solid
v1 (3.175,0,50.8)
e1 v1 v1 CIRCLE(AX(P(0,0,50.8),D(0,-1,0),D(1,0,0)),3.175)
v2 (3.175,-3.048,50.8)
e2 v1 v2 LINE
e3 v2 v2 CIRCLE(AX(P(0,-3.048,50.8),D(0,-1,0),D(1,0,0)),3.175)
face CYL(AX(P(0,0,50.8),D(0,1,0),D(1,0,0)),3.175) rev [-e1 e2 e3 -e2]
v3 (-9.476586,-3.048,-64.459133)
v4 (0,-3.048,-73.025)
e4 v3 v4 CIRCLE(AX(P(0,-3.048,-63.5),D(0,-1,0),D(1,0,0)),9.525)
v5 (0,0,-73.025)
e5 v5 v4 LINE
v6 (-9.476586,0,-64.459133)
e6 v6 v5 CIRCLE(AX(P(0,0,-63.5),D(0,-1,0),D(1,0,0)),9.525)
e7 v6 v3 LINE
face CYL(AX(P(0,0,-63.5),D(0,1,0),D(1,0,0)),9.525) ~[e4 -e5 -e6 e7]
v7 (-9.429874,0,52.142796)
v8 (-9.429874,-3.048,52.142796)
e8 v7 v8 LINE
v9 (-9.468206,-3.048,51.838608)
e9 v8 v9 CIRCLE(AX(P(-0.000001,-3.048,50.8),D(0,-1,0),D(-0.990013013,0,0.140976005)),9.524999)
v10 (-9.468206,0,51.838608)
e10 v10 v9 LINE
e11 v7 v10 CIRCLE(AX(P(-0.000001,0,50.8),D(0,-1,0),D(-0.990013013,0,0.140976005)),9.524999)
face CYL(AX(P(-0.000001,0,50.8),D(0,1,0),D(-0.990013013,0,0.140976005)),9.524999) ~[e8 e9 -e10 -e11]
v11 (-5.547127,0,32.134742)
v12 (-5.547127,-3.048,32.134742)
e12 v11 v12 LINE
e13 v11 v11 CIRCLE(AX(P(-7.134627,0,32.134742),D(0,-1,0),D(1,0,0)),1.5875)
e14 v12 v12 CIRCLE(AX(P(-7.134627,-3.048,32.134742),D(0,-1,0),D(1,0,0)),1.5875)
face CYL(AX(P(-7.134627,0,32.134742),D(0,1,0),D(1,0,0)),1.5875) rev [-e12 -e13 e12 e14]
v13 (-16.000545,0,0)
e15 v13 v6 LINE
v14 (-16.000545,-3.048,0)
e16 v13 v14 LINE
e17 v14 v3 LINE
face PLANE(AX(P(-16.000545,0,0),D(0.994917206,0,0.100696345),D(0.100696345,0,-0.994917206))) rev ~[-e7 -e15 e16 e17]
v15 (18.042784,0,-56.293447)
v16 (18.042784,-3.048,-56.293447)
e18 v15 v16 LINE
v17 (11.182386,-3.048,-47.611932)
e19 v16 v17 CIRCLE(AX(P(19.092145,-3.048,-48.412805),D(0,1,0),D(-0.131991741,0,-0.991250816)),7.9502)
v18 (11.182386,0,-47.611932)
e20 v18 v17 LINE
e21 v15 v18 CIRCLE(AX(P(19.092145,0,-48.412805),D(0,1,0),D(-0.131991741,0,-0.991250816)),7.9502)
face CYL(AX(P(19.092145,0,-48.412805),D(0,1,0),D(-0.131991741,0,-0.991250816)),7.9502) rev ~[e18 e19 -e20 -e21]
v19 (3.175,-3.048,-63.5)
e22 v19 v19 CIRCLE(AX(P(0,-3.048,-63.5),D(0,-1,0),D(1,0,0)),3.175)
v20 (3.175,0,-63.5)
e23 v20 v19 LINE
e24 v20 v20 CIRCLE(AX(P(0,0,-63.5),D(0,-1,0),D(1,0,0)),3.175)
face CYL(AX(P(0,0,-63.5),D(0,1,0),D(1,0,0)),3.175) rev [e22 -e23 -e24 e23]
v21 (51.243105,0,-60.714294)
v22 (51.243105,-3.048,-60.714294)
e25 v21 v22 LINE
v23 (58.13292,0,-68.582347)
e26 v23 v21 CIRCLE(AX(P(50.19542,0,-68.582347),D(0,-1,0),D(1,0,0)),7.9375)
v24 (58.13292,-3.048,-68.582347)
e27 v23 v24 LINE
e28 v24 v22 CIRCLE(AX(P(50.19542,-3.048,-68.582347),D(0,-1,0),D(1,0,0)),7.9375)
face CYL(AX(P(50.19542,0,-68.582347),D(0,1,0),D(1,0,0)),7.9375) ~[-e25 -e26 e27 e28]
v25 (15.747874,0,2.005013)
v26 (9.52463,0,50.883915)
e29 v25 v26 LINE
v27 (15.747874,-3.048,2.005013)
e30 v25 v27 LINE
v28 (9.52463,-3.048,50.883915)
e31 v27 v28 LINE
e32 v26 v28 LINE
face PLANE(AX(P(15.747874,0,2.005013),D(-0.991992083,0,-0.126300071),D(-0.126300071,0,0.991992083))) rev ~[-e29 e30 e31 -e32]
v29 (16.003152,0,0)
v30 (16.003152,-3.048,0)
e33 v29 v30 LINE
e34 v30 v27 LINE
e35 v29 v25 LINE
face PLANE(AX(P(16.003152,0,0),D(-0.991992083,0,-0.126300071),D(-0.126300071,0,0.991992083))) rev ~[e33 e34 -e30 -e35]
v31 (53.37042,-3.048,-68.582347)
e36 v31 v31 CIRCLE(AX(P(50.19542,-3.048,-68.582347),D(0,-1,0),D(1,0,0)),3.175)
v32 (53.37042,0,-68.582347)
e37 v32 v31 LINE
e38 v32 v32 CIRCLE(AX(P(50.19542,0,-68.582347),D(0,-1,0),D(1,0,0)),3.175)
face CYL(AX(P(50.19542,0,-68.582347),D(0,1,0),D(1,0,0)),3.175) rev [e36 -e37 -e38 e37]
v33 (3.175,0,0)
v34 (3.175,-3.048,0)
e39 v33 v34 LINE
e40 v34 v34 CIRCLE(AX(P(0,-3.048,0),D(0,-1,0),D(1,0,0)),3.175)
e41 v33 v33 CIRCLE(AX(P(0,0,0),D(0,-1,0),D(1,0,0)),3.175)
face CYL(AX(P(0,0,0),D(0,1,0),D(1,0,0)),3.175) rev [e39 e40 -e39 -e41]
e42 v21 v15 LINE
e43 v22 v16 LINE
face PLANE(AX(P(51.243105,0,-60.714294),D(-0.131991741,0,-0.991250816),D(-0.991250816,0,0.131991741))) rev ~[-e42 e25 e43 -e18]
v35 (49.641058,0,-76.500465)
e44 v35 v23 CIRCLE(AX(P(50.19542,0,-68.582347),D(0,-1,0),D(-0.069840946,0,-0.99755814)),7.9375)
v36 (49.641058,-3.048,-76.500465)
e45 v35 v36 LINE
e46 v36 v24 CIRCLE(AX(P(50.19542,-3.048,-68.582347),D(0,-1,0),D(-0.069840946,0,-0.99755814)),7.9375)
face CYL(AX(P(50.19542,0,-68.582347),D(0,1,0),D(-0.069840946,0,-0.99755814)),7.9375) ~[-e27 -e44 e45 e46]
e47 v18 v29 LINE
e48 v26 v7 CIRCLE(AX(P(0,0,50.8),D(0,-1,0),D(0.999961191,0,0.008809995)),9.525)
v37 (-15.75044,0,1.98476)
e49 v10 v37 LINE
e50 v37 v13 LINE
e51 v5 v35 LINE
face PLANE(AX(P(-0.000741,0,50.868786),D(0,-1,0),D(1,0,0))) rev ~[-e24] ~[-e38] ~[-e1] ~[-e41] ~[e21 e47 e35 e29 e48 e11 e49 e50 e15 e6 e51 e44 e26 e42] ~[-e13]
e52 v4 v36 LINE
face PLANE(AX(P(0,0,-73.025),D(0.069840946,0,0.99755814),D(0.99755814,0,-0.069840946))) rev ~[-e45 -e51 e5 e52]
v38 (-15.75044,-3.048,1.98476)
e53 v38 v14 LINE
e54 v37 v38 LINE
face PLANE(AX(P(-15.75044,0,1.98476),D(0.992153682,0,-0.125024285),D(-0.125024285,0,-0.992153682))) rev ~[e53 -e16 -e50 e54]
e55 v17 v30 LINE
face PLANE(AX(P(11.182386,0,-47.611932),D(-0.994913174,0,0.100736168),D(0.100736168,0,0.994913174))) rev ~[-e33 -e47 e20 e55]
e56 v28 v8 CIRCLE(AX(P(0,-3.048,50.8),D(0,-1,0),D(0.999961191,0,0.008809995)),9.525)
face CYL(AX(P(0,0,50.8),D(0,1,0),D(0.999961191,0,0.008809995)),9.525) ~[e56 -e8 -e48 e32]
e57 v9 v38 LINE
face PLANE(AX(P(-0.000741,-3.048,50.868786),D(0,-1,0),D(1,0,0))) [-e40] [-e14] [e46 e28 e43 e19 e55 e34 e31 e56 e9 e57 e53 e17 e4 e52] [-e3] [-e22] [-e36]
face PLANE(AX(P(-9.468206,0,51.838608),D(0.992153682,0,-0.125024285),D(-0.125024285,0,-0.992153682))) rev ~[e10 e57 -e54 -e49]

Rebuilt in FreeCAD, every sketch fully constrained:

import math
import FreeCAD as App
import Part
import Sketcher
from FreeCAD import Vector
Q = App.Units.Quantity

doc = App.newDocument("Part")
params = doc.addObject("Spreadsheet::Sheet", "Params")
for row, (alias, value) in enumerate([
    ("sketch1_diameter", "0.25 in"),
    ("sketch1_diameter2", "0.125 in"),
    ("sketch1_radius", "0.375 in"),
    ("sketch1_radius2", "0.3125 in"),
    ("sketch1_radius3", "0.313 in"),
    ("pad1_length", "0.12 in"),
], start=1):
    params.set(f"A{row}", alias)
    params.set(f"B{row}", "=" + value)
    params.setAlias(f"B{row}", alias)

body = doc.addObject("PartDesign::Body", "Body")

# Sketch on XZ plane
sketch1 = body.newObject("Sketcher::SketchObject", "Sketch")
sketch1.AttachmentSupport = (doc.getObject("XZ_Plane"), [""])
sketch1.MapMode = "FlatFace"
sketch1.addGeometry([
    Part.ArcOfCircle(Part.Circle(Vector(0, 50.8, 0), Vector(0, 0, 1), 9.53), math.radians(1), math.radians(172)),  # 0
    Part.ArcOfCircle(Part.Circle(Vector(0, 50.8, 0), Vector(0, 0, 1), 9.52), math.radians(171.9), math.radians(173.74)),  # 1
    Part.LineSegment(Vector(-9.47, 51.84, 0), Vector(-15.75, 1.98, 0)),  # 2
    Part.LineSegment(Vector(-15.75, 1.98, 0), Vector(-16, 0, 0)),  # 3
    Part.LineSegment(Vector(-16, 0, 0), Vector(-9.48, -64.46, 0)),  # 4
    Part.ArcOfCircle(Part.Circle(Vector(0, -63.5, 0), Vector(0, 0, 1), 9.53), math.radians(-174), math.radians(-90)),  # 5
    Part.LineSegment(Vector(0, -73.03, 0), Vector(49.64, -76.5, 0)),  # 6
    Part.ArcOfCircle(Part.Circle(Vector(50.2, -68.58, 0), Vector(0, 0, 1), 7.94), math.radians(-94), math.radians(0)),  # 7
    Part.ArcOfCircle(Part.Circle(Vector(50.2, -68.58, 0), Vector(0, 0, 1), 7.94), math.radians(0), math.radians(82)),  # 8
    Part.LineSegment(Vector(51.24, -60.71, 0), Vector(18.04, -56.29, 0)),  # 9
    Part.ArcOfCircle(Part.Circle(Vector(19.09, -48.41, 0), Vector(0, 0, 1), 7.95), math.radians(174), math.radians(262)),  # 10
    Part.LineSegment(Vector(11.18, -47.61, 0), Vector(16, 0, 0)),  # 11
    Part.LineSegment(Vector(16, 0, 0), Vector(15.75, 2.01, 0)),  # 12
    Part.LineSegment(Vector(15.75, 2.01, 0), Vector(9.52, 50.88, 0)),  # 13
    Part.Circle(Vector(0, -63.5, 0), Vector(0, 0, 1), 3.17),  # 14
    Part.Circle(Vector(50.2, -68.58, 0), Vector(0, 0, 1), 3.17),  # 15
    Part.Circle(Vector(0, 0, 0), Vector(0, 0, 1), 3.17),  # 16
    Part.Circle(Vector(-7.13, 32.13, 0), Vector(0, 0, 1), 1.59),  # 17
    Part.Circle(Vector(0, 50.8, 0), Vector(0, 0, 1), 3.17),  # 18
], False)
sketch1.addConstraint([
    Sketcher.Constraint("Tangent", 0, 2, 1, 1),
    Sketcher.Constraint("Coincident", 1, 2, 2, 1),
    Sketcher.Constraint("Coincident", 2, 2, 3, 1),
    Sketcher.Constraint("Coincident", 3, 2, 4, 1),
    Sketcher.Constraint("Tangent", 4, 2, 5, 1),
    Sketcher.Constraint("Coincident", 5, 2, 6, 1),
    Sketcher.Constraint("Tangent", 6, 2, 7, 1),
    Sketcher.Constraint("Tangent", 7, 2, 8, 1),
    Sketcher.Constraint("Tangent", 8, 2, 9, 1),
    Sketcher.Constraint("Tangent", 9, 2, 10, 2),
    Sketcher.Constraint("Tangent", 10, 1, 11, 1),
    Sketcher.Constraint("Coincident", 11, 2, 12, 1),
    Sketcher.Constraint("Coincident", 12, 2, 13, 1),
    Sketcher.Constraint("Coincident", 13, 2, 0, 1),
    Sketcher.Constraint("Coincident", 16, 3, -1, 1),
    Sketcher.Constraint("Coincident", 14, 3, 5, 3),
    Sketcher.Constraint("Coincident", 15, 3, 7, 3),
    Sketcher.Constraint("Coincident", 18, 3, 0, 3),
    Sketcher.Constraint("Equal", 0, 1),
    Sketcher.Constraint("Equal", 1, 5),
    Sketcher.Constraint("Equal", 7, 8),
    Sketcher.Constraint("Equal", 14, 15),
    Sketcher.Constraint("Equal", 15, 16),
    Sketcher.Constraint("Equal", 16, 18),
    Sketcher.Constraint("PointOnObject", 0, 3, -2),
    Sketcher.Constraint("PointOnObject", 5, 3, -2),
    Sketcher.Constraint("PointOnObject", 3, 2, -1),
    Sketcher.Constraint("PointOnObject", 5, 2, -2),
    Sketcher.Constraint("PointOnObject", 11, 2, -1),
    Sketcher.Constraint("Parallel", 2, 3),
    Sketcher.Constraint("Parallel", 12, 13),
    Sketcher.Constraint("Horizontal", 15, 3, 7, 2),
    Sketcher.Constraint("Diameter", 14, Q("0.25 in")),
    Sketcher.Constraint("Diameter", 17, Q("0.125 in")),
    Sketcher.Constraint("DistanceY", -1, 1, 0, 3, Q("2 in")),
    Sketcher.Constraint("Radius", 0, Q("0.375 in")),
    Sketcher.Constraint("Radius", 7, Q("0.3125 in")),
    Sketcher.Constraint("Radius", 10, Q("0.313 in")),
    Sketcher.Constraint("DistanceY", 5, 3, -1, 1, Q("2.5 in")),
    Sketcher.Constraint("Distance", 12, Q("2.021199 mm")),
    Sketcher.Constraint("DistanceY", 4, 2, 10, 1, Q("16.847201 mm")),
    Sketcher.Constraint("DistanceX", 17, 3, 12, 2, Q("22.882501 mm")),
    Sketcher.Constraint("Distance", 2, Q("50.24811 mm")),
    Sketcher.Constraint("Distance", 4, Q("64.788439 mm")),
    Sketcher.Constraint("Distance", 6, Q("49.762571 mm")),
    Sketcher.Constraint("Distance", 9, Q("33.49336 mm")),
    Sketcher.Constraint("Distance", 13, Q("49.27348 mm")),
    Sketcher.Constraint("DistanceX", -1, 1, 7, 3, Q("50.19542 mm")),
    Sketcher.Constraint("DistanceY", -1, 1, 17, 3, Q("32.134742 mm")),
    Sketcher.Constraint("DistanceX", 2, 2, -1, 1, Q("15.75044 mm")),
    Sketcher.Constraint("DistanceX", -1, 1, 11, 2, Q("16.003152 mm")),
    Sketcher.Constraint("DistanceX", 1, 2, 0, 2, Q("0.038332 mm")),
])
sketch1.setExpression("Constraints[32]", "Params.sketch1_diameter")
sketch1.setExpression("Constraints[33]", "Params.sketch1_diameter2")
sketch1.setExpression("Constraints[35]", "Params.sketch1_radius")
sketch1.setExpression("Constraints[36]", "Params.sketch1_radius2")
sketch1.setExpression("Constraints[37]", "Params.sketch1_radius3")
pad1 = body.newObject("PartDesign::Pad", "Pad")
pad1.Profile = sketch1
pad1.setExpression("Length", "Params.pad1_length")

doc.recompute()
